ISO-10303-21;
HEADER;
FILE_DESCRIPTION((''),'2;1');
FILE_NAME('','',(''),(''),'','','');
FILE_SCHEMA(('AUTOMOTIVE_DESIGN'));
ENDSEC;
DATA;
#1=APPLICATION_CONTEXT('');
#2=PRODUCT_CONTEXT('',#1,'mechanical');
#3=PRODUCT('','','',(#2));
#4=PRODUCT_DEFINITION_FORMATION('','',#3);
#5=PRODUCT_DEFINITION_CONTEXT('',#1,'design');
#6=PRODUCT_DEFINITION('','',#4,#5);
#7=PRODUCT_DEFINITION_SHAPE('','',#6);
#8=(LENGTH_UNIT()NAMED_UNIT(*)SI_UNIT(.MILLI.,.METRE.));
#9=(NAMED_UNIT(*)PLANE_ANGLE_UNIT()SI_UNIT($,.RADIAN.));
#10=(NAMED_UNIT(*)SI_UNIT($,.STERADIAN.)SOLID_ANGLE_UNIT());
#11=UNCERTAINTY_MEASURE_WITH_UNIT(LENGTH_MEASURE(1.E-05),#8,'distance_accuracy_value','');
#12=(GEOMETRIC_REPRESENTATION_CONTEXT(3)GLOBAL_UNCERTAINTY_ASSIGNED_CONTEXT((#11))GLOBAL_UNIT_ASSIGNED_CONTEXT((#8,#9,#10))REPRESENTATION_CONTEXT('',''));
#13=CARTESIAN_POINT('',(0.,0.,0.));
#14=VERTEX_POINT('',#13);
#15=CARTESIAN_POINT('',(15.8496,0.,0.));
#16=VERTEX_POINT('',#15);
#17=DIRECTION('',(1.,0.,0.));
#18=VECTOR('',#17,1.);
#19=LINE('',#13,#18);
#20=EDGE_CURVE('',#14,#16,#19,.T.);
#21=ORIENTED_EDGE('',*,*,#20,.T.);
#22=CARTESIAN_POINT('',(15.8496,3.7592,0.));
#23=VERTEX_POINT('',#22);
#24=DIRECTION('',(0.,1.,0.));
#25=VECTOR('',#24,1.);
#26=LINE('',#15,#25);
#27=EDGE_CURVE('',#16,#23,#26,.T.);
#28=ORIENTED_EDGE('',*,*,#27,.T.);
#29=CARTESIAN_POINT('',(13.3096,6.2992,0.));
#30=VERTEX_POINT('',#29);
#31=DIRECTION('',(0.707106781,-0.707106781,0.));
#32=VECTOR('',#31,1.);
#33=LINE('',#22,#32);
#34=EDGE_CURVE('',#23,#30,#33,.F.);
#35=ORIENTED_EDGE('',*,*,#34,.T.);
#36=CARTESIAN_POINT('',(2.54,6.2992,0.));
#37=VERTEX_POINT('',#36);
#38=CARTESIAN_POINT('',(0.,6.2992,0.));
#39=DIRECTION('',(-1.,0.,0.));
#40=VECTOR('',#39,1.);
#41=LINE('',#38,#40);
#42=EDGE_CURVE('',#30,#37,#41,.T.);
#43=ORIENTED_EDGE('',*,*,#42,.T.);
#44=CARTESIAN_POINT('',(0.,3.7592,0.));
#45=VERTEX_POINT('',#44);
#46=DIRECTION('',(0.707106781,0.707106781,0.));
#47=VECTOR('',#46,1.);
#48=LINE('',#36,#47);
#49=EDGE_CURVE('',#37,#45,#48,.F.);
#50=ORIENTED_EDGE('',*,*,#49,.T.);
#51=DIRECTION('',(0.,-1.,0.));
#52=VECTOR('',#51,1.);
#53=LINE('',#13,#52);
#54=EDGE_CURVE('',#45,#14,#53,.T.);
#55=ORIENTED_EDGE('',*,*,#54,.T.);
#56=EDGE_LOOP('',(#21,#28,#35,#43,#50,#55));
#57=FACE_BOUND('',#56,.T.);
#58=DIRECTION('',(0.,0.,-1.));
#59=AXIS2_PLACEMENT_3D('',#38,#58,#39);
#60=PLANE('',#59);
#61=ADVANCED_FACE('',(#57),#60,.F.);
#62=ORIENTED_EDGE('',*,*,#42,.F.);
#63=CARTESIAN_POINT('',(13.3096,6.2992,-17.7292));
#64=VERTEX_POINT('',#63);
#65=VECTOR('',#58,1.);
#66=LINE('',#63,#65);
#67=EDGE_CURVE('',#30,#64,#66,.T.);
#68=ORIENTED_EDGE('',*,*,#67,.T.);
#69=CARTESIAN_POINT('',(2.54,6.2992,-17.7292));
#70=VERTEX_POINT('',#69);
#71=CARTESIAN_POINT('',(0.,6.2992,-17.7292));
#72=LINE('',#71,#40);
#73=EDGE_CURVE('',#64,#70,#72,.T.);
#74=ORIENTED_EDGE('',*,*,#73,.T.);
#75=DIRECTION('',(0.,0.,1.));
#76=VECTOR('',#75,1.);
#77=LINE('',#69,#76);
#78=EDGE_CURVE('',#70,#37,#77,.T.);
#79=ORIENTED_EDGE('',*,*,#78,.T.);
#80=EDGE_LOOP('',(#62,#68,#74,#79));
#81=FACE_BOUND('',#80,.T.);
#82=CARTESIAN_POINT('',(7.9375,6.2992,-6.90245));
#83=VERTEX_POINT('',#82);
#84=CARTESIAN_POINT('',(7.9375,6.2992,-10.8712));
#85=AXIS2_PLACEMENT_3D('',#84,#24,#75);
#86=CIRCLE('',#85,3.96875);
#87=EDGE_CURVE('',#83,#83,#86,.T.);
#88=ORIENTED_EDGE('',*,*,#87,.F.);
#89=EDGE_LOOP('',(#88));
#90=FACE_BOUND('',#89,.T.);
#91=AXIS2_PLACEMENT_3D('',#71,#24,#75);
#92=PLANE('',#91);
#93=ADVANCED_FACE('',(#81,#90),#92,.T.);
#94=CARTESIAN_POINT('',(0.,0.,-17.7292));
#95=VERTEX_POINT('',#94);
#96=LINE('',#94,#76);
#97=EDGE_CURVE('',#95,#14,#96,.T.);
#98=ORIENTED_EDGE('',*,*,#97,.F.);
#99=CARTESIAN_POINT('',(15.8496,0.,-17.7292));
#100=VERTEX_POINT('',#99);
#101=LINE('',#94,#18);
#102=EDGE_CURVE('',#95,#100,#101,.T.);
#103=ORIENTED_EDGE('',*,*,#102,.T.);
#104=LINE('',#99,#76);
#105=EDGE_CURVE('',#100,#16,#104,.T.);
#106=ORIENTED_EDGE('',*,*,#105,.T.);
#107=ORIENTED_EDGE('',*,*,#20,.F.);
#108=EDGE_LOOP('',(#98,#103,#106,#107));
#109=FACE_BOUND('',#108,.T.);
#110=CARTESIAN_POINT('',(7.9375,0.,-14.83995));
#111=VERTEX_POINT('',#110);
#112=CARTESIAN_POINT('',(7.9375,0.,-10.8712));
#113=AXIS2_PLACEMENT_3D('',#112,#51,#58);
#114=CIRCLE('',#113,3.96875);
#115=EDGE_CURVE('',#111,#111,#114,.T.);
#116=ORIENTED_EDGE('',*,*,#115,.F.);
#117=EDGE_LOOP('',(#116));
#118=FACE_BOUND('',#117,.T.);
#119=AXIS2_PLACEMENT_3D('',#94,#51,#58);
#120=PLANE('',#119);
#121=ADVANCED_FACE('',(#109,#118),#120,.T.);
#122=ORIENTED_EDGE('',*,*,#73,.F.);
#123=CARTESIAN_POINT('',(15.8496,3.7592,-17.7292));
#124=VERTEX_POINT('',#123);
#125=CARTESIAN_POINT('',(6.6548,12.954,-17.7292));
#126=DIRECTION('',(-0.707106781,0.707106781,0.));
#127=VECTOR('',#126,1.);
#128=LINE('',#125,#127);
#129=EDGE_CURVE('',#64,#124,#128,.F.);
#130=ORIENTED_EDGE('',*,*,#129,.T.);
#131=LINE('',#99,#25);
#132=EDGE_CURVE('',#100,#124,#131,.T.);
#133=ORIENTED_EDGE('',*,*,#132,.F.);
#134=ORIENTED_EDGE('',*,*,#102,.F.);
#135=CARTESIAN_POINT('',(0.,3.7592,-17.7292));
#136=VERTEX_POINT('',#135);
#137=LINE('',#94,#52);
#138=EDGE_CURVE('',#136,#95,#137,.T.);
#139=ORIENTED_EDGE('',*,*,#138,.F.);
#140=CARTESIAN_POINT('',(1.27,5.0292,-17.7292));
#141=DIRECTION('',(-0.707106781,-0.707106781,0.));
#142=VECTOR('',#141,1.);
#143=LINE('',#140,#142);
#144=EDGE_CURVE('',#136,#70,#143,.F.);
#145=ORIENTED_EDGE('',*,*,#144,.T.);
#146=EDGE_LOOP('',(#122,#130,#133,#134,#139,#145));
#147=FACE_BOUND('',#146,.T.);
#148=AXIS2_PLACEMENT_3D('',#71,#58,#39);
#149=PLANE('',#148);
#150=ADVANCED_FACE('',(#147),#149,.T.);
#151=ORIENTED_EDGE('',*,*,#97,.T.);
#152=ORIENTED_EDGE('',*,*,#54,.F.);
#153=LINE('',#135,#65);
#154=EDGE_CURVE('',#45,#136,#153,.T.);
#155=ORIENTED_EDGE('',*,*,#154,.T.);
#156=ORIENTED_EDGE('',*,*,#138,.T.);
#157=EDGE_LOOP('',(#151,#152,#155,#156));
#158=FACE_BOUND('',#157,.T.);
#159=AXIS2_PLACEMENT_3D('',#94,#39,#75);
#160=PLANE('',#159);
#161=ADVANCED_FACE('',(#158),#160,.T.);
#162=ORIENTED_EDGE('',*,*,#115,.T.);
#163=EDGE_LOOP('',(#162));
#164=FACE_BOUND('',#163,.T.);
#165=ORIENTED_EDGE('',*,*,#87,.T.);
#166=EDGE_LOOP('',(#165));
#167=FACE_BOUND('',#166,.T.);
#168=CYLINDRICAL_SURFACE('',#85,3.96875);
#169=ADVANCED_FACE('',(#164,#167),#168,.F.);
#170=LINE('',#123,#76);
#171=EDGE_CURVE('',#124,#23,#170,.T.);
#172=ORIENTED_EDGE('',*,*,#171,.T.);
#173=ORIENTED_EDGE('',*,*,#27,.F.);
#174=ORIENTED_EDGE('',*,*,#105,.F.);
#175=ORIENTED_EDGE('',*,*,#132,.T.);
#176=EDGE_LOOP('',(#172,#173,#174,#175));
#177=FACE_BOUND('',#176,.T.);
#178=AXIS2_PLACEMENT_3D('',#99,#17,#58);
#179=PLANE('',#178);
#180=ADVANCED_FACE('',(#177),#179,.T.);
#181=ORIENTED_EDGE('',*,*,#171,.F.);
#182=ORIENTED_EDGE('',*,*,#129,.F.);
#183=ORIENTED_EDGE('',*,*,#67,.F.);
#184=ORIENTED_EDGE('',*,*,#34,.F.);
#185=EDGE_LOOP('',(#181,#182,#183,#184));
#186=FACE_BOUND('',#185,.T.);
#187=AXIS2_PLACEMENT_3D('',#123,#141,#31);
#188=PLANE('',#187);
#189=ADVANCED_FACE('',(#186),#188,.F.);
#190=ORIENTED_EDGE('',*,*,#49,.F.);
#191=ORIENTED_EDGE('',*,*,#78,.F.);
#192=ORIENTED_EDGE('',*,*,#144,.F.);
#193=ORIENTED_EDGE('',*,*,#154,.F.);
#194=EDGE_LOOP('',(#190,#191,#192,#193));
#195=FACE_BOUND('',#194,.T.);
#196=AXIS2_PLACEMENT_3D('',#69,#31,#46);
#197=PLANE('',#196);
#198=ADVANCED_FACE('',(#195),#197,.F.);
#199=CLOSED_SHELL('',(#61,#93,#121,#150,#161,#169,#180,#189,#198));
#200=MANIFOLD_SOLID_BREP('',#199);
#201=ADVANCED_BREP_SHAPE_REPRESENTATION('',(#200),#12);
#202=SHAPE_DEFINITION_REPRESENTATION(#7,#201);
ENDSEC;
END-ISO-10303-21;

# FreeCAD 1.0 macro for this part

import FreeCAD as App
import Part
import Sketcher
from FreeCAD import Vector
Q = App.Units.Quantity


def edges_at(feature, points):
    """Names of the edges that pass closest to the given points."""
    edges = feature.Shape.Edges
    near = lambda p: min(range(len(edges)), key=lambda i: edges[i].distToShape(Part.Vertex(*p))[0])
    return sorted({f"Edge{near(p) + 1}" for p in points})


def add_polygon(sketch, points):
    """Adds a closed chain of lines whose ends are joined by coincident constraints."""
    first, n = sketch.GeometryCount, len(points)
    for a, b in zip(points, points[1:] + points[:1]):
        sketch.addGeometry(Part.LineSegment(App.Vector(*a, 0), App.Vector(*b, 0)), False)
    for i in range(n):
        sketch.addConstraint(Sketcher.Constraint("Coincident", first + i, 2, first + (i + 1) % n, 1))

doc = App.newDocument("Part")
body = doc.addObject("PartDesign::Body", "Body")

sketch1 = doc.addObject("Sketcher::SketchObject", "Sketch")
body.addObject(sketch1)
sketch1.AttachmentSupport = (doc.XY_Plane, [""])
sketch1.MapMode = "FlatFace"
add_polygon(sketch1, [(0, 6), (0, 0), (16, 0), (16, 6)])
sketch1.addConstraint(Sketcher.Constraint("Vertical", 0))
sketch1.addConstraint(Sketcher.Constraint("Horizontal", 1))
sketch1.addConstraint(Sketcher.Constraint("Vertical", 2))
sketch1.addConstraint(Sketcher.Constraint("Horizontal", 3))
sketch1.addConstraint(Sketcher.Constraint("Coincident", 0, 2, -1, 1))
sketch1.addConstraint(Sketcher.Constraint("DistanceX", 1, 1, 1, 2, Q("0.624 in")))
sketch1.addConstraint(Sketcher.Constraint("DistanceY", 0, 2, 0, 1, Q("0.248 in")))
pad1 = doc.addObject("PartDesign::Pad", "Pad")
body.addObject(pad1)
pad1.Profile = sketch1
pad1.Length = Q("0.698 in")
pad1.Reversed = True

sketch2 = doc.addObject("Sketcher::SketchObject", "Sketch001")
body.addObject(sketch2)
sketch2.AttachmentSupport = (doc.XZ_Plane, [""])
sketch2.MapMode = "FlatFace"
sketch2.AttachmentOffset = App.Placement(Vector(0, 0, -0.248 * 25.4), App.Rotation())
sketch2.addGeometry(Part.Circle(Vector(7.9, -10.9, 0), Vector(0, 0, 1), 3.3), False)
sketch2.addConstraint(Sketcher.Constraint("Diameter", 0, Q("0.257 in")))
sketch2.addConstraint(Sketcher.Constraint("DistanceX", -1, 1, 0, 3, Q("0.3125 in")))
sketch2.addConstraint(Sketcher.Constraint("DistanceY", 0, 3, -1, 1, Q("0.428 in")))
doc.recompute()
hole = doc.addObject("PartDesign::Hole", "Hole")
body.addObject(hole)
hole.Profile = sketch2
hole.ThreadType = "None"
hole.Diameter = Q("0.257 in")
hole.DepthType = "ThroughAll"
hole.HoleCutType = "Counterbore"
hole.HoleCutDiameter = Q("0.3125 in")
hole.HoleCutDepth = Q("0.625 in")
hole.Reversed = True
doc.recompute()

chamfer = doc.addObject("PartDesign::Chamfer", "Chamfer")
body.addObject(chamfer)
chamfer.Base = (hole, edges_at(hole, [(0, 6.299, -8.865), (15.85, 6.299, -8.865)]))
chamfer.Size = Q("0.1 in")

doc.recompute()
